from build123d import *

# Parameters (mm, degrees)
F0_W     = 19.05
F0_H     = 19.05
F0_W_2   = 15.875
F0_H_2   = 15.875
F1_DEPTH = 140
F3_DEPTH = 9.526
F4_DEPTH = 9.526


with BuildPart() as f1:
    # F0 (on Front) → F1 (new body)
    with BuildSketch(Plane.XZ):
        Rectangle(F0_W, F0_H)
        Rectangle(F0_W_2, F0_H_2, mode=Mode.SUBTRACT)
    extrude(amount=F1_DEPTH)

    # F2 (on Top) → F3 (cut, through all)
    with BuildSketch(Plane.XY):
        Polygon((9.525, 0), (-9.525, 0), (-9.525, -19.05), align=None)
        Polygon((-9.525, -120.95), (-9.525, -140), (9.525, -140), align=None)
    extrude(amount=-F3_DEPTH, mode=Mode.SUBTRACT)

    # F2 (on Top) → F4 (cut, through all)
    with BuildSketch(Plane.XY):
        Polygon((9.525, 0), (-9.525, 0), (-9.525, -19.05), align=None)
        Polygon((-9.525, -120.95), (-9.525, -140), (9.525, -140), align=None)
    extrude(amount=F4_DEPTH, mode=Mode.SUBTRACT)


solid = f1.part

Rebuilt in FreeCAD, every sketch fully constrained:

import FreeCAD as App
import Part
import Sketcher

V = App.Vector
Q = App.Units.Quantity


def add_polygon(sketch, points):
    """Adds a closed chain of lines whose ends are joined by coincident constraints."""
    first, n = sketch.GeometryCount, len(points)
    for a, b in zip(points, points[1:] + points[:1]):
        sketch.addGeometry(Part.LineSegment(App.Vector(*a, 0), App.Vector(*b, 0)), False)
    for i in range(n):
        sketch.addConstraint(Sketcher.Constraint("Coincident", first + i, 2, first + (i + 1) % n, 1))

doc = App.newDocument("Part")
body = doc.addObject("PartDesign::Body", "Body")

# Sketch on XZ plane
sketch1 = body.newObject("Sketcher::SketchObject", "Sketch")
sketch1.AttachmentSupport = (doc.getObject("XZ_Plane"), [""])
sketch1.MapMode = "FlatFace"
add_polygon(sketch1, [(-9.525, 9.525), (-9.525, -9.525), (9.525, -9.525), (9.525, 9.525)])  # lines 0-3
add_polygon(sketch1, [(7.9375, -7.9375), (-7.9375, -7.9375), (-7.9375, 7.9375), (7.9375, 7.9375)])  # lines 4-7
sketch1.addConstraint([
    Sketcher.Constraint("Vertical", 0),
    Sketcher.Constraint("Horizontal", 1),
    Sketcher.Constraint("Vertical", 2),
    Sketcher.Constraint("Horizontal", 3),
    Sketcher.Constraint("Horizontal", 4),
    Sketcher.Constraint("Vertical", 5),
    Sketcher.Constraint("Horizontal", 6),
    Sketcher.Constraint("Vertical", 7),
    Sketcher.Constraint("Symmetric", 0, 2, 2, 2, -1, 1),
    Sketcher.Constraint("Symmetric", 4, 2, 6, 2, -1, 1),
    Sketcher.Constraint("Equal", 3, 0),
    Sketcher.Constraint("Equal", 6, 5),
    Sketcher.Constraint("DistanceX", 1, 1, 1, 2, Q("0.75 in")),
    Sketcher.Constraint("DistanceX", 4, 2, 4, 1, Q("0.625 in")),
])
pad1 = body.newObject("PartDesign::Pad", "Pad")
pad1.Profile = sketch1
pad1.Length = 140

# Sketch on XY plane
sketch2 = body.newObject("Sketcher::SketchObject", "Sketch001")
sketch2.AttachmentSupport = (doc.getObject("XY_Plane"), [""])
sketch2.MapMode = "FlatFace"
add_polygon(sketch2, [(9.525, 0), (-9.525, 0), (-9.525, -19.05)])  # lines 0-2
add_polygon(sketch2, [(-9.525, -120.95), (-9.525, -140), (9.525, -140)])  # lines 3-5
sketch2.addConstraint([
    Sketcher.Constraint("Horizontal", 0),
    Sketcher.Constraint("Vertical", 1),
    Sketcher.Constraint("Vertical", 3),
    Sketcher.Constraint("Horizontal", 4),
    Sketcher.Constraint("Symmetric", 0, 2, 2, 2, -1, 1),
    Sketcher.Constraint("Perpendicular", 2, 5),
    Sketcher.Constraint("Vertical", 1, 2, 3, 2),
    Sketcher.Constraint("Vertical", 2, 2, 4, 2),
    Sketcher.Constraint("Equal", 4, 1),
    Sketcher.Constraint("DistanceX", 0, 2, 0, 1, Q("0.75 in")),
    Sketcher.Constraint("DistanceY", 3, 2, -1, 1, Q("140 mm")),
])
pocket1 = body.newObject("PartDesign::Pocket", "Pocket")
pocket1.Profile = sketch2
pocket1.Type = "ThroughAll"

# Sketch on XY plane
sketch3 = body.newObject("Sketcher::SketchObject", "Sketch002")
sketch3.AttachmentSupport = (doc.getObject("XY_Plane"), [""])
sketch3.MapMode = "FlatFace"
add_polygon(sketch3, [(9.525, 0), (-9.525, 0), (-9.525, -19.05)])  # lines 0-2
add_polygon(sketch3, [(-9.525, -120.95), (-9.525, -140), (9.525, -140)])  # lines 3-5
sketch3.addConstraint([
    Sketcher.Constraint("Horizontal", 0),
    Sketcher.Constraint("Vertical", 1),
    Sketcher.Constraint("Vertical", 3),
    Sketcher.Constraint("Horizontal", 4),
    Sketcher.Constraint("Symmetric", 0, 2, 2, 2, -1, 1),
    Sketcher.Constraint("Perpendicular", 2, 5),
    Sketcher.Constraint("Vertical", 1, 2, 3, 2),
    Sketcher.Constraint("Vertical", 2, 2, 4, 2),
    Sketcher.Constraint("Equal", 4, 1),
    Sketcher.Constraint("DistanceX", 0, 2, 0, 1, Q("0.75 in")),
    Sketcher.Constraint("DistanceY", 3, 2, -1, 1, Q("140 mm")),
])
pocket2 = body.newObject("PartDesign::Pocket", "Pocket001")
pocket2.Profile = sketch3
pocket2.Type = "ThroughAll"
pocket2.Reversed = True

doc.recompute()
